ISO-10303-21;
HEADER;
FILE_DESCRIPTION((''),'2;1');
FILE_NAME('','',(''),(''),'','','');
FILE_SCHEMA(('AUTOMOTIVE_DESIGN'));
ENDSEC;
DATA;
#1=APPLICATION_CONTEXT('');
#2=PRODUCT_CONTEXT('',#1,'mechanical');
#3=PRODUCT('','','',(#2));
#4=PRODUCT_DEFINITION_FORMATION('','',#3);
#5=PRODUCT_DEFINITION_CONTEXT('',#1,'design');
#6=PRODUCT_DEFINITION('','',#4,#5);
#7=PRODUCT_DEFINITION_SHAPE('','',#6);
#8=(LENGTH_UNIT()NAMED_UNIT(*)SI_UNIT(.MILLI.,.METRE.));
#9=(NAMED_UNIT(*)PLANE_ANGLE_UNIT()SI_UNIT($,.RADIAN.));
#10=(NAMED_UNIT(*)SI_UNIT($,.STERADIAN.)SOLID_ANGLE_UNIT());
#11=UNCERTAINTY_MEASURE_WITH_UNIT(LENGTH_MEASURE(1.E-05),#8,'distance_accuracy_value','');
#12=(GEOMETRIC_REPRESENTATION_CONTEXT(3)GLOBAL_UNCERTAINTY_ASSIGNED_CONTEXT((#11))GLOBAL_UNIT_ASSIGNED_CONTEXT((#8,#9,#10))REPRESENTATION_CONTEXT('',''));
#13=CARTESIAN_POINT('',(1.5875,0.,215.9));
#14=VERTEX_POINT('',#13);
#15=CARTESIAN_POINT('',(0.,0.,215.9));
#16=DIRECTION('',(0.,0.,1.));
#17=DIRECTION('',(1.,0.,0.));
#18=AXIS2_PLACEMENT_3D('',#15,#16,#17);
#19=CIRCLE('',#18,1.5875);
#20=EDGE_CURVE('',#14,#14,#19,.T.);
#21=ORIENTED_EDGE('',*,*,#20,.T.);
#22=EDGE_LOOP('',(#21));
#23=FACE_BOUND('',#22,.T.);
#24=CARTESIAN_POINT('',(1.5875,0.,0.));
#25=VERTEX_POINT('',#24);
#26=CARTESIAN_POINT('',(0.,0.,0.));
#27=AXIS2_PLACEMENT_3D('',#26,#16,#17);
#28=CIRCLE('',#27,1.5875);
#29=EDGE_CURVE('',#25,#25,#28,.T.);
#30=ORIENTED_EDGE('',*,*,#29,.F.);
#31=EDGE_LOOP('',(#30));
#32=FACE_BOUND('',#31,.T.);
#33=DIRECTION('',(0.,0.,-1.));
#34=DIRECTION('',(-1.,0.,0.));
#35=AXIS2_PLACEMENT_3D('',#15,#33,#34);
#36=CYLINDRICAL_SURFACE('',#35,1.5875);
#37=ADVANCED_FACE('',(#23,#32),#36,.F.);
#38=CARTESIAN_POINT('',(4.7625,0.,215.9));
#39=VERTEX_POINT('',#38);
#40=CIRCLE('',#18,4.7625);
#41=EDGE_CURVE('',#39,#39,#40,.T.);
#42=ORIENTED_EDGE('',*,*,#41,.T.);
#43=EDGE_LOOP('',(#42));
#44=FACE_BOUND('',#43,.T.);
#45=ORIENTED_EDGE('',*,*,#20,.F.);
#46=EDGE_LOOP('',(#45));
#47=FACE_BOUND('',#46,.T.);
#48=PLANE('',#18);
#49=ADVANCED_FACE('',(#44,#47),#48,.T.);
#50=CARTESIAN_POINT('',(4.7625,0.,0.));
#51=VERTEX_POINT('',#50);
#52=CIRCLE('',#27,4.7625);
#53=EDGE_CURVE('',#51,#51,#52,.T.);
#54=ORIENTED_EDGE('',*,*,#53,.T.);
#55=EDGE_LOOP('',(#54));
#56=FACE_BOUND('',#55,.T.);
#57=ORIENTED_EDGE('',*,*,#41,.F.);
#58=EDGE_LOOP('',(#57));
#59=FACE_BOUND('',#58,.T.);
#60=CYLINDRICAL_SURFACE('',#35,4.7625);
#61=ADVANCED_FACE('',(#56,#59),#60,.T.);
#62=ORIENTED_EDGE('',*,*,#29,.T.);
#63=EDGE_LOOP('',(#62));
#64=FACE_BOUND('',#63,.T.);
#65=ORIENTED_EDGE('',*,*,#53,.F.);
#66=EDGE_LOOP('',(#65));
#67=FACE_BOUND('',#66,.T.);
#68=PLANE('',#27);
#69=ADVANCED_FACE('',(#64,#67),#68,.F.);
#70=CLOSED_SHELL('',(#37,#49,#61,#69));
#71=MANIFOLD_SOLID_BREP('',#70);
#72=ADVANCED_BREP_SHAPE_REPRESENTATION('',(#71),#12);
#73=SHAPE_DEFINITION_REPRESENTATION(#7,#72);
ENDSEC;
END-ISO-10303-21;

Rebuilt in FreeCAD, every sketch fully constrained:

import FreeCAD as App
import Part
import Sketcher
Q = App.Units.Quantity

doc = App.newDocument("Part")
body = doc.addObject("PartDesign::Body", "Body")

# Sketch on XY plane
sketch1 = body.newObject("Sketcher::SketchObject", "Sketch")
sketch1.AttachmentSupport = (doc.getObject("XY_Plane"), [""])
sketch1.MapMode = "FlatFace"
sketch1.addGeometry(Part.Circle(App.Vector(0, 0, 0), App.Vector(0, 0, 1), 4.7625), False)
sketch1.addGeometry(Part.Circle(App.Vector(0, 0, 0), App.Vector(0, 0, 1), 1.5875), False)
sketch1.addConstraint(Sketcher.Constraint("Coincident", 0, 3, -1, 1))
sketch1.addConstraint(Sketcher.Constraint("Coincident", 1, 3, -1, 1))
sketch1.addConstraint(Sketcher.Constraint("Diameter", 0, Q("0.375 in")))
sketch1.addConstraint(Sketcher.Constraint("Diameter", 1, Q("0.125 in")))
pad1 = body.newObject("PartDesign::Pad", "Pad")
pad1.Profile = sketch1
pad1.Length = Q("8.5 in")

doc.recompute()
